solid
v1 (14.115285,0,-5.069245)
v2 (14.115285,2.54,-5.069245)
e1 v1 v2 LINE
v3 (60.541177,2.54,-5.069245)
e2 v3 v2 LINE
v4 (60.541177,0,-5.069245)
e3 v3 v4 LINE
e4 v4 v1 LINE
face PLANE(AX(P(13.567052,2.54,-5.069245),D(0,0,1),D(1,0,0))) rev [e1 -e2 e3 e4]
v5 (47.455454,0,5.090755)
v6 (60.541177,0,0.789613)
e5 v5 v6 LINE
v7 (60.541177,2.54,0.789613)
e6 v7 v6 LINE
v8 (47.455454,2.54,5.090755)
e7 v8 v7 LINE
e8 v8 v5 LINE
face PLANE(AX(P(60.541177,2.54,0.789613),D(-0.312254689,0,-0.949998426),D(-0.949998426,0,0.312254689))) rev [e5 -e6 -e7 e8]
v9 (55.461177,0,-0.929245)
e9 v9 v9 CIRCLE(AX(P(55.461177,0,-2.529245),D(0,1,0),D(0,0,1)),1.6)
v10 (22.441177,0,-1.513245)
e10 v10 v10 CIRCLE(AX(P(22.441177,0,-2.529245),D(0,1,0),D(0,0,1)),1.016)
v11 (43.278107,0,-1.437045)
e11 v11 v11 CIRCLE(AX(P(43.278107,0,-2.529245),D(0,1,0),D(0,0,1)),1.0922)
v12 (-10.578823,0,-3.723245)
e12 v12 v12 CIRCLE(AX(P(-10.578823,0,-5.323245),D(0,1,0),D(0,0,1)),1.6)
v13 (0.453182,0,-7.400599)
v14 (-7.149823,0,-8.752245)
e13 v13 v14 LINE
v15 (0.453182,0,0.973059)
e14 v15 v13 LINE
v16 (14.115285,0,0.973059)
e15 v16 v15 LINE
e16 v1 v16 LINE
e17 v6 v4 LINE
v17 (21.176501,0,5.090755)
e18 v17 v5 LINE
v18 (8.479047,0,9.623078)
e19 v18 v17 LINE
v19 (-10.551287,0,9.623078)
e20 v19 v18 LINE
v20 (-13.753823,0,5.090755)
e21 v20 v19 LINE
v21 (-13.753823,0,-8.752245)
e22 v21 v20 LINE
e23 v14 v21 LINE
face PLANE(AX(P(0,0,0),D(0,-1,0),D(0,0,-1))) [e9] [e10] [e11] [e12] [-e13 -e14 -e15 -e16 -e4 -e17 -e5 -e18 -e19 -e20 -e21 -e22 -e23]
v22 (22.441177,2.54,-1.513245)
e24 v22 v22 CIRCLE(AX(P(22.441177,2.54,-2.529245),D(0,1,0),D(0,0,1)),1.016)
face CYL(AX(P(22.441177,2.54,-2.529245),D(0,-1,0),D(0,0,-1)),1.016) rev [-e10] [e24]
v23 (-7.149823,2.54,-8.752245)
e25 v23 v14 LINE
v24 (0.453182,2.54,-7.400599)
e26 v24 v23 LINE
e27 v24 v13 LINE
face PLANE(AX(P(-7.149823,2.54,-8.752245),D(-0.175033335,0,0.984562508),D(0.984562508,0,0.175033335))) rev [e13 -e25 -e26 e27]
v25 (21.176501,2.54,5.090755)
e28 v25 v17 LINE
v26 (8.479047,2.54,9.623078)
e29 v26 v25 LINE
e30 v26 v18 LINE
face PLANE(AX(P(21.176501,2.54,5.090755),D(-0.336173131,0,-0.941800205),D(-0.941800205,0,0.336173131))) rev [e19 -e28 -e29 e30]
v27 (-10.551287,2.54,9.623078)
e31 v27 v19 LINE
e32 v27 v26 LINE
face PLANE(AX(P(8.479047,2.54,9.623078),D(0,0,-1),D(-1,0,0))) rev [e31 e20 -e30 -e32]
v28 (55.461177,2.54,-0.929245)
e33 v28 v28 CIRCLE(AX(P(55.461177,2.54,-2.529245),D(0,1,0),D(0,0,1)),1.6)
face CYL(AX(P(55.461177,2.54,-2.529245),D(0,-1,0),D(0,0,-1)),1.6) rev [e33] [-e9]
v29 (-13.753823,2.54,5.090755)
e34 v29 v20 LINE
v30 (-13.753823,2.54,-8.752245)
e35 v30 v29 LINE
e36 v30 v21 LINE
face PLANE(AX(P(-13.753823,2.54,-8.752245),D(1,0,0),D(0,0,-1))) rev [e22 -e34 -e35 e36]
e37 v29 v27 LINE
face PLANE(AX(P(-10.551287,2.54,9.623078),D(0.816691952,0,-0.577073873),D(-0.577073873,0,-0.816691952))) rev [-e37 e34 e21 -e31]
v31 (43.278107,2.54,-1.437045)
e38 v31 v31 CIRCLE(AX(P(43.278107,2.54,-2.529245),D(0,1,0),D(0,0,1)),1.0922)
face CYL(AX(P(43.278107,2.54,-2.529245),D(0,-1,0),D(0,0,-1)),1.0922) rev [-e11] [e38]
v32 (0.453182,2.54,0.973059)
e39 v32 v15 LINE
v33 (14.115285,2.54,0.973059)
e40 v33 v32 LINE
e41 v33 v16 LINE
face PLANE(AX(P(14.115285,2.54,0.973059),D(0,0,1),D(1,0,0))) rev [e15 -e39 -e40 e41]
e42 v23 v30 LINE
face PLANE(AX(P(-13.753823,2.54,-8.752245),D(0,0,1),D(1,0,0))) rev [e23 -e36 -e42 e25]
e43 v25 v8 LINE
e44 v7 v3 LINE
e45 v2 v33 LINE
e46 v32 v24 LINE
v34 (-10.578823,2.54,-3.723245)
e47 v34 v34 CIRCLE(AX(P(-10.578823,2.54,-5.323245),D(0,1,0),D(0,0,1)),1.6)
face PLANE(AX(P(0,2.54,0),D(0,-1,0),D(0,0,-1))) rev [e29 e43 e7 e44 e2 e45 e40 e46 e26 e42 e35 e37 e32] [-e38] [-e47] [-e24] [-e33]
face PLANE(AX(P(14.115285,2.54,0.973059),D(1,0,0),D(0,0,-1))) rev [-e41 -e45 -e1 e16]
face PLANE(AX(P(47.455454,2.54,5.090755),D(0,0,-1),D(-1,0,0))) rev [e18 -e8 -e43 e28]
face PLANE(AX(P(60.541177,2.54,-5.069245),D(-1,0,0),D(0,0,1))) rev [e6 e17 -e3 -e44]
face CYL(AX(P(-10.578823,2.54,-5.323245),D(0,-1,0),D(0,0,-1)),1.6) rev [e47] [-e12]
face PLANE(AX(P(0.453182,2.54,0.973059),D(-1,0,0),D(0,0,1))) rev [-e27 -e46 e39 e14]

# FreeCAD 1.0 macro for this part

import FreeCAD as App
import Part
import Sketcher
Q = App.Units.Quantity

doc = App.newDocument("Part")
body = doc.addObject("PartDesign::Body", "Body")

sketch1 = body.newObject("Sketcher::SketchObject", "Sketch")
sketch1.AttachmentSupport = (doc.getObject("XZ_Plane"), [""])
sketch1.MapMode = "FlatFace"
sketch1.addGeometry(Part.LineSegment(App.Vector(-13.8, -8.8, 0), App.Vector(-13.8, 5.1, 0)), False)
sketch1.addGeometry(Part.LineSegment(App.Vector(-13.8, 5.1, 0), App.Vector(-10.6, 9.6, 0)), False)
sketch1.addGeometry(Part.LineSegment(App.Vector(-10.6, 9.6, 0), App.Vector(8.5, 9.6, 0)), False)
sketch1.addGeometry(Part.LineSegment(App.Vector(8.5, 9.6, 0), App.Vector(21.2, 5.1, 0)), False)
sketch1.addGeometry(Part.LineSegment(App.Vector(21.2, 5.1, 0), App.Vector(47.5, 5.1, 0)), False)
sketch1.addGeometry(Part.LineSegment(App.Vector(47.5, 5.1, 0), App.Vector(60.5, 0.8, 0)), False)
sketch1.addGeometry(Part.LineSegment(App.Vector(60.5, 0.8, 0), App.Vector(60.5, -5.1, 0)), False)
sketch1.addGeometry(Part.LineSegment(App.Vector(60.5, -5.1, 0), App.Vector(13.6, -5.1, 0)), False)
sketch1.addGeometry(Part.LineSegment(App.Vector(13.6, -5.1, 0), App.Vector(-7.1, -8.8, 0)), False)
sketch1.addGeometry(Part.LineSegment(App.Vector(-7.1, -8.8, 0), App.Vector(-13.8, -8.8, 0)), False)
sketch1.addGeometry(Part.Circle(App.Vector(22.4, -2.5, 0), App.Vector(0, 0, 1), 1), False)
sketch1.addGeometry(Part.Circle(App.Vector(43.3, -2.5, 0), App.Vector(0, 0, 1), 1.1), False)
sketch1.addGeometry(Part.Circle(App.Vector(55.5, -2.5, 0), App.Vector(0, 0, 1), 1.6), False)
sketch1.addGeometry(Part.Circle(App.Vector(-10.6, -5.3, 0), App.Vector(0, 0, 1), 1.6), False)
sketch1.addConstraint(Sketcher.Constraint("Coincident", 0, 2, 1, 1))
sketch1.addConstraint(Sketcher.Constraint("Coincident", 1, 2, 2, 1))
sketch1.addConstraint(Sketcher.Constraint("Coincident", 2, 2, 3, 1))
sketch1.addConstraint(Sketcher.Constraint("Coincident", 3, 2, 4, 1))
sketch1.addConstraint(Sketcher.Constraint("Coincident", 4, 2, 5, 1))
sketch1.addConstraint(Sketcher.Constraint("Coincident", 5, 2, 6, 1))
sketch1.addConstraint(Sketcher.Constraint("Coincident", 6, 2, 7, 1))
sketch1.addConstraint(Sketcher.Constraint("Coincident", 7, 2, 8, 1))
sketch1.addConstraint(Sketcher.Constraint("Coincident", 8, 2, 9, 1))
sketch1.addConstraint(Sketcher.Constraint("Coincident", 9, 2, 0, 1))
sketch1.addConstraint(Sketcher.Constraint("Vertical", 0))
sketch1.addConstraint(Sketcher.Constraint("Horizontal", 2))
sketch1.addConstraint(Sketcher.Constraint("Horizontal", 4))
sketch1.addConstraint(Sketcher.Constraint("Vertical", 6))
sketch1.addConstraint(Sketcher.Constraint("Horizontal", 7))
sketch1.addConstraint(Sketcher.Constraint("Horizontal", 9))
sketch1.addConstraint(Sketcher.Constraint("Equal", 12, 13))
sketch1.addConstraint(Sketcher.Constraint("Horizontal", 10, 3, 11, 3))
sketch1.addConstraint(Sketcher.Constraint("Horizontal", 11, 3, 12, 3))
sketch1.addConstraint(Sketcher.Constraint("Horizontal", 0, 2, 3, 2))
sketch1.addConstraint(Sketcher.Constraint("Diameter", 10, Q("0.08 in")))
sketch1.addConstraint(Sketcher.Constraint("Diameter", 11, Q("0.086 in")))
sketch1.addConstraint(Sketcher.Constraint("DistanceX", 9, 2, 9, 1, Q("0.26 in")))
sketch1.addConstraint(Sketcher.Constraint("DistanceX", 10, 3, 12, 3, Q("1.3 in")))
sketch1.addConstraint(Sketcher.Constraint("DistanceX", 13, 3, 10, 3, Q("1.3 in")))
sketch1.addConstraint(Sketcher.Constraint("DistanceY", 10, 3, 0, 2, Q("0.3 in")))
sketch1.addConstraint(Sketcher.Constraint("DistanceX", 12, 3, 5, 2, Q("0.2 in")))
sketch1.addConstraint(Sketcher.Constraint("DistanceY", 6, 2, 12, 3, Q("0.1 in")))
sketch1.addConstraint(Sketcher.Constraint("Diameter", 12, Q("3.2 mm")))
sketch1.addConstraint(Sketcher.Constraint("DistanceY", 0, 1, 0, 2, Q("0.545 in")))
sketch1.addConstraint(Sketcher.Constraint("DistanceY", 13, 3, 10, 3, Q("0.11 in")))
sketch1.addConstraint(Sketcher.Constraint("DistanceX", 0, 2, 13, 3, Q("0.125 in")))
sketch1.addConstraint(Sketcher.Constraint("DistanceX", -1, 1, 3, 2, Q("21.176501 mm")))
sketch1.addConstraint(Sketcher.Constraint("Distance", 1, Q("5.549611 mm")))
sketch1.addConstraint(Sketcher.Constraint("Distance", 3, Q("13.48211 mm")))
sketch1.addConstraint(Sketcher.Constraint("DistanceX", 2, 1, 2, 2, Q("19.030335 mm")))
sketch1.addConstraint(Sketcher.Constraint("DistanceX", 4, 1, 4, 2, Q("26.278953 mm")))
sketch1.addConstraint(Sketcher.Constraint("DistanceX", 7, 2, 7, 1, Q("46.974125 mm")))
sketch1.addConstraint(Sketcher.Constraint("DistanceY", 6, 2, 6, 1, Q("5.858858 mm")))
sketch1.addConstraint(Sketcher.Constraint("DistanceY", -1, 1, 1, 2, Q("9.623078 mm")))
sketch1.addConstraint(Sketcher.Constraint("DistanceX", -1, 1, 7, 2, Q("13.567052 mm")))
sketch1.addConstraint(Sketcher.Constraint("DistanceX", 10, 3, 11, 3, Q("20.83693 mm")))
pad1 = body.newObject("PartDesign::Pad", "Pad")
pad1.Profile = sketch1
pad1.Length = Q("0.1 in")
pad1.Reversed = True

sketch2 = body.newObject("Sketcher::SketchObject", "Sketch001")
sketch2.AttachmentSupport = (doc.getObject("XZ_Plane"), [""])
sketch2.MapMode = "FlatFace"
sketch2.addGeometry(Part.LineSegment(App.Vector(0, 1, 0), App.Vector(0, -9, 0)), False)
sketch2.addGeometry(Part.LineSegment(App.Vector(0, -9, 0), App.Vector(14, -9, 0)), False)
sketch2.addGeometry(Part.LineSegment(App.Vector(14, -9, 0), App.Vector(14, 1, 0)), False)
sketch2.addGeometry(Part.LineSegment(App.Vector(14, 1, 0), App.Vector(0, 1, 0)), False)
sketch2.addConstraint(Sketcher.Constraint("Coincident", 0, 2, 1, 1))
sketch2.addConstraint(Sketcher.Constraint("Coincident", 1, 2, 2, 1))
sketch2.addConstraint(Sketcher.Constraint("Coincident", 2, 2, 3, 1))
sketch2.addConstraint(Sketcher.Constraint("Coincident", 3, 2, 0, 1))
sketch2.addConstraint(Sketcher.Constraint("Vertical", 0))
sketch2.addConstraint(Sketcher.Constraint("Horizontal", 1))
sketch2.addConstraint(Sketcher.Constraint("Vertical", 2))
sketch2.addConstraint(Sketcher.Constraint("Horizontal", 3))
sketch2.addConstraint(Sketcher.Constraint("DistanceX", 1, 1, 1, 2, Q("13.662103 mm")))
sketch2.addConstraint(Sketcher.Constraint("DistanceY", 0, 2, 0, 1, Q("9.772536 mm")))
sketch2.addConstraint(Sketcher.Constraint("DistanceY", -1, 1, 2, 2, Q("0.973059 mm")))
sketch2.addConstraint(Sketcher.Constraint("DistanceX", -1, 1, 0, 2, Q("0.453182 mm")))
pocket1 = body.newObject("PartDesign::Pocket", "Pocket")
pocket1.Profile = sketch2
pocket1.Length = Q("0.1 in")

doc.recompute()
